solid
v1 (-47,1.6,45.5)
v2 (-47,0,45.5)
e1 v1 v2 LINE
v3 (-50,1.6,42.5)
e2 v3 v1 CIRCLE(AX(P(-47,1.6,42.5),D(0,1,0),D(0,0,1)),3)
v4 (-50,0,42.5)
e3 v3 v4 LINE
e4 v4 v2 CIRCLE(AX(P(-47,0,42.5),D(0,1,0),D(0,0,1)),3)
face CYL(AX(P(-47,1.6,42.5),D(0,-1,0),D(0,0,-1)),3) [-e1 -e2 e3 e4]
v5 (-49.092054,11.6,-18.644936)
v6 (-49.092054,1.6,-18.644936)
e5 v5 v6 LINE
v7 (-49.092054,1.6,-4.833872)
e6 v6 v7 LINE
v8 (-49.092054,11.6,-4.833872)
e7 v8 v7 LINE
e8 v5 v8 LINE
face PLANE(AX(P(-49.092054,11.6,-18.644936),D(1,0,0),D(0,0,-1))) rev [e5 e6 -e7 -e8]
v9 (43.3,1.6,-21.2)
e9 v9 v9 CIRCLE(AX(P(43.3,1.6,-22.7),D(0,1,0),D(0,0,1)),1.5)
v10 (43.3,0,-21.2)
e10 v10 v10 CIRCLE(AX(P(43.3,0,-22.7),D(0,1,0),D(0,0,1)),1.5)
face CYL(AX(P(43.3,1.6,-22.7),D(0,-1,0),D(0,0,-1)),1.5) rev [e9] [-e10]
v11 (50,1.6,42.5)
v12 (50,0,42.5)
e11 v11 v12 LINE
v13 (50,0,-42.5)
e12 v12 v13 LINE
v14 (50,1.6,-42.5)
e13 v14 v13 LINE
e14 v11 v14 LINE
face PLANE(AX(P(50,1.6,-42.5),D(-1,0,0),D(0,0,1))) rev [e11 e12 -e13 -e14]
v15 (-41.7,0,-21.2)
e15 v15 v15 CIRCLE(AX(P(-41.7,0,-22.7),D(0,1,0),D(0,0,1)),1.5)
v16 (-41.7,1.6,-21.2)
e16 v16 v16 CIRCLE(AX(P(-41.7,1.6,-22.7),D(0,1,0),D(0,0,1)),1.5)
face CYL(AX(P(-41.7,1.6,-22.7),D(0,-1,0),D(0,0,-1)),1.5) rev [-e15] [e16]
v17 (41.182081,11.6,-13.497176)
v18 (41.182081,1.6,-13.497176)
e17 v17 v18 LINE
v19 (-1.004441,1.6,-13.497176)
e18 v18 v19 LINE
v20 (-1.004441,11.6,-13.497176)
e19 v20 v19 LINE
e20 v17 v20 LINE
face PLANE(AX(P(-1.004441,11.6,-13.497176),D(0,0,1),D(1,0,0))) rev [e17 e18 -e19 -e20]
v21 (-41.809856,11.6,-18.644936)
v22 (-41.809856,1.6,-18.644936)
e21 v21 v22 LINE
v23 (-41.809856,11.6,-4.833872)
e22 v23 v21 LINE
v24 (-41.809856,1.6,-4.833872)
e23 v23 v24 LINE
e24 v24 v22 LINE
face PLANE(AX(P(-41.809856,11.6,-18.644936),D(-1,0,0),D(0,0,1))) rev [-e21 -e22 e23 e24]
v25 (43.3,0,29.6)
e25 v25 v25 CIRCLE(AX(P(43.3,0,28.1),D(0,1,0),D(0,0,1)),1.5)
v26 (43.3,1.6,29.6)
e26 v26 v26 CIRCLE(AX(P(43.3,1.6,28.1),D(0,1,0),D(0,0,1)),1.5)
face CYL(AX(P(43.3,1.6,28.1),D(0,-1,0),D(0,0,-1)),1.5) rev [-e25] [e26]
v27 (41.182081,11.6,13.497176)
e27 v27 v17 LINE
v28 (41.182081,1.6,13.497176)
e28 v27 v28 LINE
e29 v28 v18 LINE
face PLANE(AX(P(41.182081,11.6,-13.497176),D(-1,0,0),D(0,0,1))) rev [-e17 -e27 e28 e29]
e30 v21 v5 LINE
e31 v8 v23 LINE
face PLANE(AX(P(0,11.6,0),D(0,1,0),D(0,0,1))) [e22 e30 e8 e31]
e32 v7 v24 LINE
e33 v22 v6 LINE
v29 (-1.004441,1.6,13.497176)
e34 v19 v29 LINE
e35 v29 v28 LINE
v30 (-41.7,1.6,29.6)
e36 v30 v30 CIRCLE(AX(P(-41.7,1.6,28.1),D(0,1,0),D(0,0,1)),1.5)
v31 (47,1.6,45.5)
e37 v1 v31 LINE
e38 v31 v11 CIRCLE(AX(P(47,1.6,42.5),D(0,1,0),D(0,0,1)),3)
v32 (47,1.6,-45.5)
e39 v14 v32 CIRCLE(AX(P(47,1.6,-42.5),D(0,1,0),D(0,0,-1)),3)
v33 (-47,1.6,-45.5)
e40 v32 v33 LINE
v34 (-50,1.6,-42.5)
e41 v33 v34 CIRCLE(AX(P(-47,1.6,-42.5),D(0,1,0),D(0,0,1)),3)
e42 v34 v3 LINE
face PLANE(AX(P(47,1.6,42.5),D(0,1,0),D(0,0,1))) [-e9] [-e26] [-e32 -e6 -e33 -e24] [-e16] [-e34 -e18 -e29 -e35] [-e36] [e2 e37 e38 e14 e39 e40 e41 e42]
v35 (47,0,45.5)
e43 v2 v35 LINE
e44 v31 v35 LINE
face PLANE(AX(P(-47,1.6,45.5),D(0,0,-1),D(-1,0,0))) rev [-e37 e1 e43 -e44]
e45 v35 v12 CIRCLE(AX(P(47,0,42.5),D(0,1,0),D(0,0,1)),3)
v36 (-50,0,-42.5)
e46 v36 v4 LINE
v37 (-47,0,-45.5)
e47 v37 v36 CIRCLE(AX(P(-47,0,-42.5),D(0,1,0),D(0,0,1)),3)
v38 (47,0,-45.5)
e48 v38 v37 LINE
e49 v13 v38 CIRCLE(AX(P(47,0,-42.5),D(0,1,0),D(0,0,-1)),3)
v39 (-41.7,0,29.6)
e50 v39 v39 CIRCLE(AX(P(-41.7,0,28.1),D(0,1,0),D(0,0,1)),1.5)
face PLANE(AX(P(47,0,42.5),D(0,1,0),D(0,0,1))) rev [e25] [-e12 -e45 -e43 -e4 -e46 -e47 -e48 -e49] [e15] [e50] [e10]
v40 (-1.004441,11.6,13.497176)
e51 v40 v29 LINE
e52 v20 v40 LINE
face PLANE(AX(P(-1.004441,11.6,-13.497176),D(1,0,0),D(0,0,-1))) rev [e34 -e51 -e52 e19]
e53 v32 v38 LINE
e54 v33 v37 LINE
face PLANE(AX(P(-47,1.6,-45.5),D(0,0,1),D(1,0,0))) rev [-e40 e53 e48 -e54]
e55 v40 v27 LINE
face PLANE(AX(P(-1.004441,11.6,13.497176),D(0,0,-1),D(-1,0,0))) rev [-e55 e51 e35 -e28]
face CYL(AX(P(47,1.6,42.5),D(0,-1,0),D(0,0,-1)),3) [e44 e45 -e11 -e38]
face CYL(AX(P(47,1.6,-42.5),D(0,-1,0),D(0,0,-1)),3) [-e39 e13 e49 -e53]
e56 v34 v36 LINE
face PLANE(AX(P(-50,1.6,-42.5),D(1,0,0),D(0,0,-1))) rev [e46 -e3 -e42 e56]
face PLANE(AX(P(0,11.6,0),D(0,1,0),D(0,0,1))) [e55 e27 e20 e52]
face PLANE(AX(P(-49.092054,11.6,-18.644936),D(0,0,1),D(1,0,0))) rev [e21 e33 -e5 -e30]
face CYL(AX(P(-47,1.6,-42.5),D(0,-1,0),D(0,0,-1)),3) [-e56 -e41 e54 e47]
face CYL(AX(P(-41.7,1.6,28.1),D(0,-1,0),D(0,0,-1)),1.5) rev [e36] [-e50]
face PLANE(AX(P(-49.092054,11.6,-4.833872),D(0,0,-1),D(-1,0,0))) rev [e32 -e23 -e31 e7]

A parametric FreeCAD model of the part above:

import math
import FreeCAD as App
import Part
import Sketcher
from FreeCAD import Vector


def add_polygon(sketch, points):
    """Adds a closed chain of lines whose ends are joined by coincident constraints."""
    first, n = sketch.GeometryCount, len(points)
    for a, b in zip(points, points[1:] + points[:1]):
        sketch.addGeometry(Part.LineSegment(App.Vector(*a, 0), App.Vector(*b, 0)), False)
    for i in range(n):
        sketch.addConstraint(Sketcher.Constraint("Coincident", first + i, 2, first + (i + 1) % n, 1))

doc = App.newDocument("Part")
params = doc.addObject("Spreadsheet::Sheet", "Params")
for row, (alias, value) in enumerate([
    ("sketch1_diameter", "3 mm"),
    ("sketch1_radius", "3 mm"),
    ("sketch1_width", "94 mm"),
    ("sketch1_height", "85 mm"),
    ("pad1_length", "1.6 mm"),
    ("pad2_length", "10 mm"),
], start=1):
    params.set(f"A{row}", alias)
    params.set(f"B{row}", "=" + value)
    params.setAlias(f"B{row}", alias)

body = doc.addObject("PartDesign::Body", "Body")

# Sketch on XZ plane
sketch1 = doc.addObject("Sketcher::SketchObject", "Sketch")
body.addObject(sketch1)
sketch1.AttachmentSupport = (doc.XZ_Plane, [""])
sketch1.MapMode = "FlatFace"
sketch1.addGeometry([
    Part.LineSegment(Vector(47, -45.5, 0), Vector(-47, -45.5, 0)),  # 0
    Part.ArcOfCircle(Part.Circle(Vector(-47, -42.5, 0), Vector(0, 0, 1), 3), math.radians(180), math.radians(270)),  # 1
    Part.LineSegment(Vector(-50, -42.5, 0), Vector(-50, 42.5, 0)),  # 2
    Part.ArcOfCircle(Part.Circle(Vector(-47, 42.5, 0), Vector(0, 0, 1), 3), math.radians(90), math.radians(180)),  # 3
    Part.LineSegment(Vector(-47, 45.5, 0), Vector(47, 45.5, 0)),  # 4
    Part.ArcOfCircle(Part.Circle(Vector(47, 42.5, 0), Vector(0, 0, 1), 3), math.radians(0), math.radians(90)),  # 5
    Part.LineSegment(Vector(50, 42.5, 0), Vector(50, -42.5, 0)),  # 6
    Part.ArcOfCircle(Part.Circle(Vector(47, -42.5, 0), Vector(0, 0, 1), 3), math.radians(-90), math.radians(0)),  # 7
    Part.Circle(Vector(43.3, 28.1, 0), Vector(0, 0, 1), 1.5),  # 8
    Part.Circle(Vector(-41.7, 28.1, 0), Vector(0, 0, 1), 1.5),  # 9
    Part.Circle(Vector(43.3, -22.7, 0), Vector(0, 0, 1), 1.5),  # 10
    Part.Circle(Vector(-41.7, -22.7, 0), Vector(0, 0, 1), 1.5),  # 11
], False)
sketch1.addConstraint([
    Sketcher.Constraint("Tangent", 0, 2, 1, 2),
    Sketcher.Constraint("Tangent", 1, 1, 2, 1),
    Sketcher.Constraint("Tangent", 2, 2, 3, 2),
    Sketcher.Constraint("Tangent", 3, 1, 4, 1),
    Sketcher.Constraint("Tangent", 4, 2, 5, 2),
    Sketcher.Constraint("Tangent", 5, 1, 6, 1),
    Sketcher.Constraint("Tangent", 6, 2, 7, 2),
    Sketcher.Constraint("Tangent", 7, 1, 0, 1),
    Sketcher.Constraint("Horizontal", 0),
    Sketcher.Constraint("Vertical", 2),
    Sketcher.Constraint("Horizontal", 4),
    Sketcher.Constraint("Vertical", 6),
    Sketcher.Constraint("Equal", 1, 3),
    Sketcher.Constraint("Equal", 3, 5),
    Sketcher.Constraint("Equal", 5, 7),
    Sketcher.Constraint("Equal", 8, 9),
    Sketcher.Constraint("Equal", 9, 10),
    Sketcher.Constraint("Equal", 10, 11),
    Sketcher.Constraint("Symmetric", 1, 3, 5, 3, -1, 1),
    Sketcher.Constraint("Horizontal", 8, 3, 9, 3),
    Sketcher.Constraint("Horizontal", 10, 3, 11, 3),
    Sketcher.Constraint("Vertical", 8, 3, 10, 3),
    Sketcher.Constraint("Vertical", 9, 3, 11, 3),
    Sketcher.Constraint("Diameter", 8, 3.0),
    Sketcher.Constraint("Radius", 1, 3.0),
    Sketcher.Constraint("DistanceX", 0, 2, 0, 1, 94.0),
    Sketcher.Constraint("DistanceY", 2, 1, 2, 2, 85.0),
    Sketcher.Constraint("DistanceX", 9, 3, 8, 3, 85.0),
    Sketcher.Constraint("DistanceX", -1, 1, 8, 3, 43.3),
    Sketcher.Constraint("DistanceY", -1, 1, 8, 3, 28.1),
    Sketcher.Constraint("DistanceY", 10, 3, -1, 1, 22.7),
])
sketch1.setExpression("Constraints[23]", "Params.sketch1_diameter")
sketch1.setExpression("Constraints[24]", "Params.sketch1_radius")
sketch1.setExpression("Constraints[25]", "Params.sketch1_width")
sketch1.setExpression("Constraints[26]", "Params.sketch1_height")
pad1 = doc.addObject("PartDesign::Pad", "Pad")
body.addObject(pad1)
pad1.Profile = sketch1
pad1.setExpression("Length", "Params.pad1_length")
pad1.Reversed = True

# Sketch on XZ plane
sketch2 = doc.addObject("Sketcher::SketchObject", "Sketch001")
body.addObject(sketch2)
sketch2.AttachmentSupport = (doc.XZ_Plane, [""])
sketch2.MapMode = "FlatFace"
sketch2.AttachmentOffset = App.Placement(Vector(0, 0, -1.6), App.Rotation())
add_polygon(sketch2, [(-1, -13), (-1, 13), (41, 13), (41, -13)])  # lines 0-3
add_polygon(sketch2, [(-49, -19), (-49, -5), (-42, -5), (-42, -19)])  # lines 4-7
sketch2.addConstraint([
    Sketcher.Constraint("Vertical", 0),
    Sketcher.Constraint("Horizontal", 1),
    Sketcher.Constraint("Vertical", 2),
    Sketcher.Constraint("Horizontal", 3),
    Sketcher.Constraint("Vertical", 4),
    Sketcher.Constraint("Horizontal", 5),
    Sketcher.Constraint("Vertical", 6),
    Sketcher.Constraint("Horizontal", 7),
    Sketcher.Constraint("DistanceX", 1, 1, 1, 2, 42.186522),
    Sketcher.Constraint("DistanceY", 0, 1, 0, 2, 26.994352),
    Sketcher.Constraint("DistanceX", 5, 1, 5, 2, 7.282197),
    Sketcher.Constraint("DistanceY", 4, 1, 4, 2, 13.811064),
    Sketcher.Constraint("DistanceX", 0, 2, -1, 1, 1.004441),
    Sketcher.Constraint("DistanceY", 4, 2, 0, 2, 18.331048),
    Sketcher.Constraint("DistanceY", -1, 1, 0, 2, 13.497176),
    Sketcher.Constraint("DistanceX", 4, 2, -1, 1, 49.092054),
])
pad2 = doc.addObject("PartDesign::Pad", "Pad001")
body.addObject(pad2)
pad2.Profile = sketch2
pad2.setExpression("Length", "Params.pad2_length")
pad2.Reversed = True

doc.recompute()
